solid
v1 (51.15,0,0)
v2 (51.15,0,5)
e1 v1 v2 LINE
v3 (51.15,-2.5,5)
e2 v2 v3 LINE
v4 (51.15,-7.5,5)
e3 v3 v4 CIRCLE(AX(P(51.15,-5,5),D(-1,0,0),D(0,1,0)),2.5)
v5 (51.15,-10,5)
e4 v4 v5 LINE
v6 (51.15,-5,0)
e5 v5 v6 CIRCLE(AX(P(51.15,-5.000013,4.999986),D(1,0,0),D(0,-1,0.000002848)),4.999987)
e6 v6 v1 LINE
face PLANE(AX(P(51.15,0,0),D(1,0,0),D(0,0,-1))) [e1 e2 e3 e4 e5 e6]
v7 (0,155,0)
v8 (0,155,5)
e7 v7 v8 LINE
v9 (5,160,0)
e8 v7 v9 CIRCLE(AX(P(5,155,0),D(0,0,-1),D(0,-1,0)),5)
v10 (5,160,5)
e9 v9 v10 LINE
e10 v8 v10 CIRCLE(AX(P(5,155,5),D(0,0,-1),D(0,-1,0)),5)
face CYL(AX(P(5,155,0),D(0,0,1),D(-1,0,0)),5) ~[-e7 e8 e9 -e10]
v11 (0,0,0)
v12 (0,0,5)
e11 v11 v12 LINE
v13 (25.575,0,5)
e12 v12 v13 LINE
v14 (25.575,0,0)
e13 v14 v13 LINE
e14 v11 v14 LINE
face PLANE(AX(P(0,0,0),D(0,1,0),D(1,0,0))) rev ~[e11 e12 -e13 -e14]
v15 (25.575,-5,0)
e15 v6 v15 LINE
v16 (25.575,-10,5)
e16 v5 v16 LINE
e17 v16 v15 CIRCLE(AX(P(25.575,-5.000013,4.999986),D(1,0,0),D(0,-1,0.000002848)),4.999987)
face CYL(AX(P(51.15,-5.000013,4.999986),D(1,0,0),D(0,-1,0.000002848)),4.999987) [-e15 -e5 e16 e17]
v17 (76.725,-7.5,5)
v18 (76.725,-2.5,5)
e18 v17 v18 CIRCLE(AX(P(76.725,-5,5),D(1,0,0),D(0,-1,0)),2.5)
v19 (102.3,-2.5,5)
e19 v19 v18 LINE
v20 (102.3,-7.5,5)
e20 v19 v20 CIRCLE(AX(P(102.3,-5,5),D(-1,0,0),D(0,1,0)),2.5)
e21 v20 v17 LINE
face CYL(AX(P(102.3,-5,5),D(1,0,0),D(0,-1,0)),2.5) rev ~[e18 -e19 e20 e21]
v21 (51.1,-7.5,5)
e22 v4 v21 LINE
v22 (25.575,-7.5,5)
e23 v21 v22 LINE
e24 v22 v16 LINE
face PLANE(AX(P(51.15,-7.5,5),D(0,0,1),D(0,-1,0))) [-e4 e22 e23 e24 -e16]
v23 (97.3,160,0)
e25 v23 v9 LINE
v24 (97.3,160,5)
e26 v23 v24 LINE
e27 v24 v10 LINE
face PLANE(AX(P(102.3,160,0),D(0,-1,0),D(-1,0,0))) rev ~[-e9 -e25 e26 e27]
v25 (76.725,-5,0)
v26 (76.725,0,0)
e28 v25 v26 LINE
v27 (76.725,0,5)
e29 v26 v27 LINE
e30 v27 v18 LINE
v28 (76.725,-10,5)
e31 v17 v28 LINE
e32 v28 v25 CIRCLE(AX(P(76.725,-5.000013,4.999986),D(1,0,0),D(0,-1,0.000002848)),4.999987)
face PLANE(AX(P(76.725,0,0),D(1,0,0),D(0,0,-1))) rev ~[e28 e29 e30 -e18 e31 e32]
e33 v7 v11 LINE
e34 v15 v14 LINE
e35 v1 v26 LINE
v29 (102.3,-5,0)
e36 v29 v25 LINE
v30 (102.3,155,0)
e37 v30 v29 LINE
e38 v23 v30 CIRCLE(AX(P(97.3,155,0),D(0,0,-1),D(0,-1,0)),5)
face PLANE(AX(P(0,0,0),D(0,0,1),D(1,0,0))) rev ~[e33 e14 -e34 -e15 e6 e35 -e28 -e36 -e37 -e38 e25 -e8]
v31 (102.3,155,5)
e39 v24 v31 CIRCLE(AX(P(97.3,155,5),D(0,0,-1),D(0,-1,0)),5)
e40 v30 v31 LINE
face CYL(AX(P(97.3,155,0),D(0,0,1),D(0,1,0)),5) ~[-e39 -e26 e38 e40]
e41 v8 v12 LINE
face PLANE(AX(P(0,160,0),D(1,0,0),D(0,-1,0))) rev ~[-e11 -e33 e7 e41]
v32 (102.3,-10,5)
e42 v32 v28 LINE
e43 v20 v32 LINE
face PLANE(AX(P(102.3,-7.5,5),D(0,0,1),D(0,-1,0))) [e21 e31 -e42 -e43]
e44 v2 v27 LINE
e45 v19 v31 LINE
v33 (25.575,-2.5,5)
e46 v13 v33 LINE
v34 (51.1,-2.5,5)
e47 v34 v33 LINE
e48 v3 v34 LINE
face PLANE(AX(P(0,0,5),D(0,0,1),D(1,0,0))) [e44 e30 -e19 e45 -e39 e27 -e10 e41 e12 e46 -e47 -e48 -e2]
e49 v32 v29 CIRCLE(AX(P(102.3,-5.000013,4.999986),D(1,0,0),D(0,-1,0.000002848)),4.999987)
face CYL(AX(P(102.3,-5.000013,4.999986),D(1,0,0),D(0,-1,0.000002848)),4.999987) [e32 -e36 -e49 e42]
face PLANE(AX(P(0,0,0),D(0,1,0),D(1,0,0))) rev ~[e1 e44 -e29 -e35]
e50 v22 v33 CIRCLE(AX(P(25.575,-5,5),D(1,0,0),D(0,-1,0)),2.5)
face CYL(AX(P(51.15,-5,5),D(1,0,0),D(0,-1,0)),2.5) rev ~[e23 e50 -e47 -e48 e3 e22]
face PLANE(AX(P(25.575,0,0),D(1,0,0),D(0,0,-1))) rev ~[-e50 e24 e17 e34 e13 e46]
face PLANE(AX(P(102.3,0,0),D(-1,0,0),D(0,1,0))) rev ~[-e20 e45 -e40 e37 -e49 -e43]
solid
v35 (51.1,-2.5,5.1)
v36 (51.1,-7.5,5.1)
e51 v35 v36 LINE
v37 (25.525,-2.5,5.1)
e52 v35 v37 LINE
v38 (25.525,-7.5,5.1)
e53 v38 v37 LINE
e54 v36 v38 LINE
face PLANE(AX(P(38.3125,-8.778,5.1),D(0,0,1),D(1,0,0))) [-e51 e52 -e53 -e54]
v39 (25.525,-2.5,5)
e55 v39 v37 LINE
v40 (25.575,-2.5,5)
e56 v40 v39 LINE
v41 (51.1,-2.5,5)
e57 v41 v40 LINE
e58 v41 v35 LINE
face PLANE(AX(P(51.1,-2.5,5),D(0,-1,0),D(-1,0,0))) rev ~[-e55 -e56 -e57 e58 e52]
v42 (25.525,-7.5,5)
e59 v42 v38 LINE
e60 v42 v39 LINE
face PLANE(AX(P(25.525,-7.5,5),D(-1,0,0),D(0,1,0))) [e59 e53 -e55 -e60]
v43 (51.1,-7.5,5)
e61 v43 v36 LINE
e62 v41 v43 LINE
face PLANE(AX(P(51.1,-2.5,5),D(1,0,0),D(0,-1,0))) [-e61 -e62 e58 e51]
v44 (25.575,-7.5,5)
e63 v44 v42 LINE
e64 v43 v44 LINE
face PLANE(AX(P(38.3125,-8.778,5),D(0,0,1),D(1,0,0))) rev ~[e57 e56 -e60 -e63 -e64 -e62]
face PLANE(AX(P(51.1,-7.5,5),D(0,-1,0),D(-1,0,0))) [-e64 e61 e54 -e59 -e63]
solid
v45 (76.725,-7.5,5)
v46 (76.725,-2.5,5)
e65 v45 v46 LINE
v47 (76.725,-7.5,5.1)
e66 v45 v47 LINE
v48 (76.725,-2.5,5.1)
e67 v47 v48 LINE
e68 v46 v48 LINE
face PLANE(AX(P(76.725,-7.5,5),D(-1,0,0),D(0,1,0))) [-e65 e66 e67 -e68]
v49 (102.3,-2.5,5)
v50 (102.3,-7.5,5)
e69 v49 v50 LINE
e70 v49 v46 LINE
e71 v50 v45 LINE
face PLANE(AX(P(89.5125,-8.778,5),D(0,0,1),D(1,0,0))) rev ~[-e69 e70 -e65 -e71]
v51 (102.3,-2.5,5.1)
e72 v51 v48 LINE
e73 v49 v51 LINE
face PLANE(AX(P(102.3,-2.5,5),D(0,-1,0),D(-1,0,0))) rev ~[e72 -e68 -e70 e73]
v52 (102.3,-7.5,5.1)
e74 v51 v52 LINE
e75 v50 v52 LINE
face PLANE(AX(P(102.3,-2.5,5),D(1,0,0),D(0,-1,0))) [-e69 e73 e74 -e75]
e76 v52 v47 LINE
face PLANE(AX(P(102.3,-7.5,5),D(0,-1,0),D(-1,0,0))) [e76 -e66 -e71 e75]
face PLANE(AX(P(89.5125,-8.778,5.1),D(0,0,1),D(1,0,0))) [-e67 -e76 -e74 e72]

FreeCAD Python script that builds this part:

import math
import FreeCAD as App
import Part
import Sketcher
from FreeCAD import Vector


def edges_at(feature, points):
    """Names of the edges that pass closest to the given points."""
    edges = feature.Shape.Edges
    near = lambda p: min(range(len(edges)), key=lambda i: edges[i].distToShape(Part.Vertex(*p))[0])
    return sorted({f"Edge{near(p) + 1}" for p in points})

doc = App.newDocument("Part")
body = doc.addObject("PartDesign::Body", "Body")
body.AllowCompound = True

sketch1 = body.newObject("Sketcher::SketchObject", "Sketch")
sketch1.AttachmentSupport = (doc.getObject("XY_Plane"), [""])
sketch1.MapMode = "FlatFace"
sketch1.addGeometry(Part.LineSegment(Vector(0, 160, 0), Vector(0, 0, 0)), False)
sketch1.addGeometry(Part.LineSegment(Vector(0, 0, 0), Vector(102.3, 0, 0)), False)
sketch1.addGeometry(Part.LineSegment(Vector(102.3, 0, 0), Vector(102.3, 160, 0)), False)
sketch1.addGeometry(Part.LineSegment(Vector(102.3, 160, 0), Vector(0, 160, 0)), False)
sketch1.addConstraint(Sketcher.Constraint("Coincident", 0, 2, 1, 1))
sketch1.addConstraint(Sketcher.Constraint("Coincident", 1, 2, 2, 1))
sketch1.addConstraint(Sketcher.Constraint("Coincident", 2, 2, 3, 1))
sketch1.addConstraint(Sketcher.Constraint("Coincident", 3, 2, 0, 1))
sketch1.addConstraint(Sketcher.Constraint("Vertical", 0))
sketch1.addConstraint(Sketcher.Constraint("Horizontal", 1))
sketch1.addConstraint(Sketcher.Constraint("Vertical", 2))
sketch1.addConstraint(Sketcher.Constraint("Horizontal", 3))
sketch1.addConstraint(Sketcher.Constraint("Coincident", 0, 2, -1, 1))
sketch1.addConstraint(Sketcher.Constraint("DistanceY", 0, 2, 0, 1, 160.0))
sketch1.addConstraint(Sketcher.Constraint("DistanceX", 1, 1, 1, 2, 102.3))
pad1 = body.newObject("PartDesign::Pad", "Pad")
pad1.Profile = sketch1
pad1.Length = 5

sketch2 = body.newObject("Sketcher::SketchObject", "Sketch001")
sketch2.AttachmentSupport = (doc.getObject("YZ_Plane"), [""])
sketch2.MapMode = "FlatFace"
sketch2.AttachmentOffset = App.Placement(Vector(0, 0, 102.3), App.Rotation())
sketch2.addGeometry(Part.LineSegment(Vector(-5, 0, 0), Vector(0, 0, 0)), False)
sketch2.addGeometry(Part.LineSegment(Vector(0, 0, 0), Vector(0, 5, 0)), False)
sketch2.addGeometry(Part.LineSegment(Vector(0, 5, 0), Vector(-2.5, 5, 0)), False)
sketch2.addGeometry(Part.ArcOfCircle(Part.Circle(Vector(-5, 5, 0), Vector(0, 0, 1), 2.5), math.radians(180), math.radians(360)), False)
sketch2.addGeometry(Part.LineSegment(Vector(-7.5, 5, 0), Vector(-10, 5, 0)), False)
sketch2.addGeometry(Part.ArcOfCircle(Part.Circle(Vector(-5, 5, 0), Vector(0, 0, 1), 5), math.radians(180), math.radians(270)), False)
sketch2.addConstraint(Sketcher.Constraint("Coincident", 0, 2, 1, 1))
sketch2.addConstraint(Sketcher.Constraint("Coincident", 1, 2, 2, 1))
sketch2.addConstraint(Sketcher.Constraint("Coincident", 2, 2, 3, 2))
sketch2.addConstraint(Sketcher.Constraint("Coincident", 3, 1, 4, 1))
sketch2.addConstraint(Sketcher.Constraint("Coincident", 4, 2, 5, 1))
sketch2.addConstraint(Sketcher.Constraint("Tangent", 5, 2, 0, 1))
sketch2.addConstraint(Sketcher.Constraint("Horizontal", 0))
sketch2.addConstraint(Sketcher.Constraint("Vertical", 1))
sketch2.addConstraint(Sketcher.Constraint("Horizontal", 2))
sketch2.addConstraint(Sketcher.Constraint("Horizontal", 4))
sketch2.addConstraint(Sketcher.Constraint("Coincident", 0, 2, -1, 1))
sketch2.addConstraint(Sketcher.Constraint("Coincident", 5, 3, 3, 3))
sketch2.addConstraint(Sketcher.Constraint("Horizontal", 5, 3, 1, 2))
sketch2.addConstraint(Sketcher.Constraint("Horizontal", 2, 2, 3, 1))
sketch2.addConstraint(Sketcher.Constraint("Equal", 2, 4))
sketch2.addConstraint(Sketcher.Constraint("Radius", 5, 5.0))
sketch2.addConstraint(Sketcher.Constraint("Radius", 3, 2.5))
pad2 = body.newObject("PartDesign::Pad", "Pad001")
pad2.Profile = sketch2
pad2.Length = 25.575
pad2.Reversed = True
doc.recompute()

linearpattern = body.newObject("PartDesign::LinearPattern", "LinearPattern")
linearpattern.Originals = [pad2]
linearpattern.Direction = (doc.getObject("X_Axis"), [""])
linearpattern.Mode = "offset"
linearpattern.Offset = 51.15
linearpattern.Occurrences = 2
linearpattern.Reversed = True
body.Tip = linearpattern
doc.recompute()

fillet = body.newObject("PartDesign::Fillet", "Fillet")
fillet.Base = (linearpattern, edges_at(linearpattern, [(102.3, 160, 2.5), (0, 160, 2.5)]))
fillet.Radius = 5

sketch3 = body.newObject("Sketcher::SketchObject", "Sketch002")
sketch3.AttachmentSupport = (doc.getObject("XY_Plane"), [""])
sketch3.MapMode = "FlatFace"
sketch3.AttachmentOffset = App.Placement(Vector(0, 0, 5), App.Rotation())
sketch3.addGeometry(Part.LineSegment(Vector(102.3, -7.5, 0), Vector(102.3, -2.5, 0)), False)
sketch3.addGeometry(Part.LineSegment(Vector(102.3, -2.5, 0), Vector(76.725, -2.5, 0)), False)
sketch3.addGeometry(Part.LineSegment(Vector(76.725, -2.5, 0), Vector(76.725, -7.5, 0)), False)
sketch3.addGeometry(Part.LineSegment(Vector(76.725, -7.5, 0), Vector(102.3, -7.5, 0)), False)
sketch3.addConstraint(Sketcher.Constraint("Coincident", 0, 2, 1, 1))
sketch3.addConstraint(Sketcher.Constraint("Coincident", 1, 2, 2, 1))
sketch3.addConstraint(Sketcher.Constraint("Coincident", 2, 2, 3, 1))
sketch3.addConstraint(Sketcher.Constraint("Coincident", 3, 2, 0, 1))
sketch3.addConstraint(Sketcher.Constraint("Vertical", 0))
sketch3.addConstraint(Sketcher.Constraint("Horizontal", 1))
sketch3.addConstraint(Sketcher.Constraint("Vertical", 2))
sketch3.addConstraint(Sketcher.Constraint("Horizontal", 3))
sketch3.addConstraint(Sketcher.Constraint("DistanceY", 0, 1, 0, 2, 5.0))
sketch3.addConstraint(Sketcher.Constraint("DistanceX", -1, 1, 0, 2, 102.3))
sketch3.addConstraint(Sketcher.Constraint("DistanceY", 0, 2, -1, 1, 2.5))
sketch3.addConstraint(Sketcher.Constraint("DistanceX", 1, 2, 1, 1, 25.575))
pad3 = body.newObject("PartDesign::Pad", "Pad002")
pad3.Profile = sketch3
pad3.Length = 0.1
doc.recompute()

linearpattern2 = body.newObject("PartDesign::LinearPattern", "LinearPattern001")
linearpattern2.Originals = [pad3]
linearpattern2.Direction = (doc.getObject("X_Axis"), [""])
linearpattern2.Mode = "offset"
linearpattern2.Offset = 51.2
linearpattern2.Occurrences = 2
linearpattern2.Reversed = True
body.Tip = linearpattern2

doc.recompute()
